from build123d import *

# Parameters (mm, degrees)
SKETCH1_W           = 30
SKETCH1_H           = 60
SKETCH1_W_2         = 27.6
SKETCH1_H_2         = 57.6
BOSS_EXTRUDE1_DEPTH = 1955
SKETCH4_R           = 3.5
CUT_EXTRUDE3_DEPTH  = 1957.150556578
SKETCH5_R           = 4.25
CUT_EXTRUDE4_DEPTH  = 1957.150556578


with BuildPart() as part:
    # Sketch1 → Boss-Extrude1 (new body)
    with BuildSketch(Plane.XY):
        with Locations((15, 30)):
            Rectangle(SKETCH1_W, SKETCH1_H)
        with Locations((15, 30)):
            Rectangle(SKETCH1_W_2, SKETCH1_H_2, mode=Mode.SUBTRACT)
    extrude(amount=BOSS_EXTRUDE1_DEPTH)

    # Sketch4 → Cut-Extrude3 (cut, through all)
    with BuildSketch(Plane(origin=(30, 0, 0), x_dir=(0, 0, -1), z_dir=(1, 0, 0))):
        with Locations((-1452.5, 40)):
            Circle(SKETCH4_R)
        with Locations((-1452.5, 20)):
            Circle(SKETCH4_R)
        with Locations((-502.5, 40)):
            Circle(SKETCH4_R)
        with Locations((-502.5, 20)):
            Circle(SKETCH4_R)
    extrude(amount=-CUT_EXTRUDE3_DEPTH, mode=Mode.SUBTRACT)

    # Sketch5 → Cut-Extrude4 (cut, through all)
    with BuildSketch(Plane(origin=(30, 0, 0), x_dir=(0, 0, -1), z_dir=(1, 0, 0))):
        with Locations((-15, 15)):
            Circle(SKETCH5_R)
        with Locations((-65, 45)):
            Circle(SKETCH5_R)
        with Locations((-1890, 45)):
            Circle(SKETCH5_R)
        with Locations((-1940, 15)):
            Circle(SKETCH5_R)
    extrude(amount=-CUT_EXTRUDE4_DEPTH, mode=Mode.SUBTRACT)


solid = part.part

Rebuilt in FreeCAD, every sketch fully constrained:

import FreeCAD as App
import Part
import Sketcher

V = App.Vector
Q = App.Units.Quantity

doc = App.newDocument("Part")
body = doc.addObject("PartDesign::Body", "Body")

# Sketch on XY plane
sketch1 = body.newObject("Sketcher::SketchObject", "Sketch")
sketch1.AttachmentSupport = (doc.getObject("XY_Plane"), [""])
sketch1.MapMode = "FlatFace"
sketch1.addGeometry([
    Part.LineSegment(V(0, 60, 0), V(0, 0, 0)),  # 0
    Part.LineSegment(V(0, 0, 0), V(30, 0, 0)),  # 1
    Part.LineSegment(V(30, 0, 0), V(30, 60, 0)),  # 2
    Part.LineSegment(V(30, 60, 0), V(0, 60, 0)),  # 3
    Part.LineSegment(V(29, 1, 0), V(1, 1, 0)),  # 4
    Part.LineSegment(V(1, 1, 0), V(1, 59, 0)),  # 5
    Part.LineSegment(V(1, 59, 0), V(29, 59, 0)),  # 6
    Part.LineSegment(V(29, 59, 0), V(29, 1, 0)),  # 7
], False)
sketch1.addConstraint([
    Sketcher.Constraint("Coincident", 0, 2, 1, 1),
    Sketcher.Constraint("Coincident", 1, 2, 2, 1),
    Sketcher.Constraint("Coincident", 2, 2, 3, 1),
    Sketcher.Constraint("Coincident", 3, 2, 0, 1),
    Sketcher.Constraint("Coincident", 4, 2, 5, 1),
    Sketcher.Constraint("Coincident", 5, 2, 6, 1),
    Sketcher.Constraint("Coincident", 6, 2, 7, 1),
    Sketcher.Constraint("Coincident", 7, 2, 4, 1),
    Sketcher.Constraint("Vertical", 0),
    Sketcher.Constraint("Horizontal", 1),
    Sketcher.Constraint("Vertical", 2),
    Sketcher.Constraint("Horizontal", 3),
    Sketcher.Constraint("Horizontal", 4),
    Sketcher.Constraint("Vertical", 5),
    Sketcher.Constraint("Horizontal", 6),
    Sketcher.Constraint("Vertical", 7),
    Sketcher.Constraint("Coincident", 0, 2, -1, 1),
    Sketcher.Constraint("DistanceX", 1, 1, 1, 2, Q("30 mm")),
    Sketcher.Constraint("DistanceY", 0, 2, 0, 1, Q("60 mm")),
    Sketcher.Constraint("DistanceX", 4, 2, 4, 1, Q("27.6 mm")),
    Sketcher.Constraint("DistanceY", 5, 1, 5, 2, Q("57.6 mm")),
    Sketcher.Constraint("DistanceX", -1, 1, 4, 2, Q("1.2 mm")),
    Sketcher.Constraint("DistanceY", -1, 1, 4, 2, Q("1.2 mm")),
])
pad1 = body.newObject("PartDesign::Pad", "Pad")
pad1.Profile = sketch1
pad1.Length = 1955

# Sketch on YZ plane
sketch2 = body.newObject("Sketcher::SketchObject", "Sketch001")
sketch2.AttachmentSupport = (doc.getObject("YZ_Plane"), [""])
sketch2.MapMode = "FlatFace"
sketch2.AttachmentOffset = App.Placement(V(0, 0, 30), App.Rotation())
sketch2.addGeometry([
    Part.Circle(V(40, 1452.5, 0), V(0, 0, 1), 3.5),
    Part.Circle(V(20, 1452.5, 0), V(0, 0, 1), 3.5),
    Part.Circle(V(40, 502.5, 0), V(0, 0, 1), 3.5),
    Part.Circle(V(20, 502.5, 0), V(0, 0, 1), 3.5),
], False)
sketch2.addConstraint([
    Sketcher.Constraint("Equal", 0, 1),
    Sketcher.Constraint("Equal", 1, 2),
    Sketcher.Constraint("Equal", 2, 3),
    Sketcher.Constraint("Horizontal", 0, 3, 1, 3),
    Sketcher.Constraint("Horizontal", 2, 3, 3, 3),
    Sketcher.Constraint("Vertical", 0, 3, 2, 3),
    Sketcher.Constraint("Vertical", 1, 3, 3, 3),
    Sketcher.Constraint("Diameter", 0, Q("7 mm")),
    Sketcher.Constraint("DistanceX", -1, 1, 0, 3, Q("40 mm")),
    Sketcher.Constraint("DistanceX", -1, 1, 1, 3, Q("20 mm")),
    Sketcher.Constraint("DistanceY", 2, 3, 0, 3, Q("950 mm")),
    Sketcher.Constraint("DistanceY", -1, 1, 0, 3, Q("1452.5 mm")),
])
pocket1 = body.newObject("PartDesign::Pocket", "Pocket")
pocket1.Profile = sketch2
pocket1.Type = "ThroughAll"

# Sketch on YZ plane
sketch3 = body.newObject("Sketcher::SketchObject", "Sketch002")
sketch3.AttachmentSupport = (doc.getObject("YZ_Plane"), [""])
sketch3.MapMode = "FlatFace"
sketch3.AttachmentOffset = App.Placement(V(0, 0, 30), App.Rotation())
sketch3.addGeometry([
    Part.Circle(V(15, 15, 0), V(0, 0, 1), 4.2),
    Part.Circle(V(45, 65, 0), V(0, 0, 1), 4.2),
    Part.Circle(V(45, 1890, 0), V(0, 0, 1), 4.2),
    Part.Circle(V(15, 1940, 0), V(0, 0, 1), 4.2),
], False)
sketch3.addConstraint([
    Sketcher.Constraint("Equal", 0, 1),
    Sketcher.Constraint("Equal", 1, 2),
    Sketcher.Constraint("Equal", 2, 3),
    Sketcher.Constraint("Vertical", 1, 3, 2, 3),
    Sketcher.Constraint("Vertical", 0, 3, 3, 3),
    Sketcher.Constraint("Diameter", 0, Q("8.5 mm")),
    Sketcher.Constraint("DistanceX", -1, 1, 0, 3, Q("15 mm")),
    Sketcher.Constraint("DistanceY", -1, 1, 0, 3, Q("15 mm")),
    Sketcher.Constraint("DistanceX", -1, 1, 1, 3, Q("45 mm")),
    Sketcher.Constraint("DistanceY", -1, 1, 1, 3, Q("65 mm")),
    Sketcher.Constraint("DistanceY", -1, 1, 2, 3, Q("1890 mm")),
    Sketcher.Constraint("DistanceY", -1, 1, 3, 3, Q("1940 mm")),
])
pocket2 = body.newObject("PartDesign::Pocket", "Pocket001")
pocket2.Profile = sketch3
pocket2.Type = "ThroughAll"

doc.recompute()
